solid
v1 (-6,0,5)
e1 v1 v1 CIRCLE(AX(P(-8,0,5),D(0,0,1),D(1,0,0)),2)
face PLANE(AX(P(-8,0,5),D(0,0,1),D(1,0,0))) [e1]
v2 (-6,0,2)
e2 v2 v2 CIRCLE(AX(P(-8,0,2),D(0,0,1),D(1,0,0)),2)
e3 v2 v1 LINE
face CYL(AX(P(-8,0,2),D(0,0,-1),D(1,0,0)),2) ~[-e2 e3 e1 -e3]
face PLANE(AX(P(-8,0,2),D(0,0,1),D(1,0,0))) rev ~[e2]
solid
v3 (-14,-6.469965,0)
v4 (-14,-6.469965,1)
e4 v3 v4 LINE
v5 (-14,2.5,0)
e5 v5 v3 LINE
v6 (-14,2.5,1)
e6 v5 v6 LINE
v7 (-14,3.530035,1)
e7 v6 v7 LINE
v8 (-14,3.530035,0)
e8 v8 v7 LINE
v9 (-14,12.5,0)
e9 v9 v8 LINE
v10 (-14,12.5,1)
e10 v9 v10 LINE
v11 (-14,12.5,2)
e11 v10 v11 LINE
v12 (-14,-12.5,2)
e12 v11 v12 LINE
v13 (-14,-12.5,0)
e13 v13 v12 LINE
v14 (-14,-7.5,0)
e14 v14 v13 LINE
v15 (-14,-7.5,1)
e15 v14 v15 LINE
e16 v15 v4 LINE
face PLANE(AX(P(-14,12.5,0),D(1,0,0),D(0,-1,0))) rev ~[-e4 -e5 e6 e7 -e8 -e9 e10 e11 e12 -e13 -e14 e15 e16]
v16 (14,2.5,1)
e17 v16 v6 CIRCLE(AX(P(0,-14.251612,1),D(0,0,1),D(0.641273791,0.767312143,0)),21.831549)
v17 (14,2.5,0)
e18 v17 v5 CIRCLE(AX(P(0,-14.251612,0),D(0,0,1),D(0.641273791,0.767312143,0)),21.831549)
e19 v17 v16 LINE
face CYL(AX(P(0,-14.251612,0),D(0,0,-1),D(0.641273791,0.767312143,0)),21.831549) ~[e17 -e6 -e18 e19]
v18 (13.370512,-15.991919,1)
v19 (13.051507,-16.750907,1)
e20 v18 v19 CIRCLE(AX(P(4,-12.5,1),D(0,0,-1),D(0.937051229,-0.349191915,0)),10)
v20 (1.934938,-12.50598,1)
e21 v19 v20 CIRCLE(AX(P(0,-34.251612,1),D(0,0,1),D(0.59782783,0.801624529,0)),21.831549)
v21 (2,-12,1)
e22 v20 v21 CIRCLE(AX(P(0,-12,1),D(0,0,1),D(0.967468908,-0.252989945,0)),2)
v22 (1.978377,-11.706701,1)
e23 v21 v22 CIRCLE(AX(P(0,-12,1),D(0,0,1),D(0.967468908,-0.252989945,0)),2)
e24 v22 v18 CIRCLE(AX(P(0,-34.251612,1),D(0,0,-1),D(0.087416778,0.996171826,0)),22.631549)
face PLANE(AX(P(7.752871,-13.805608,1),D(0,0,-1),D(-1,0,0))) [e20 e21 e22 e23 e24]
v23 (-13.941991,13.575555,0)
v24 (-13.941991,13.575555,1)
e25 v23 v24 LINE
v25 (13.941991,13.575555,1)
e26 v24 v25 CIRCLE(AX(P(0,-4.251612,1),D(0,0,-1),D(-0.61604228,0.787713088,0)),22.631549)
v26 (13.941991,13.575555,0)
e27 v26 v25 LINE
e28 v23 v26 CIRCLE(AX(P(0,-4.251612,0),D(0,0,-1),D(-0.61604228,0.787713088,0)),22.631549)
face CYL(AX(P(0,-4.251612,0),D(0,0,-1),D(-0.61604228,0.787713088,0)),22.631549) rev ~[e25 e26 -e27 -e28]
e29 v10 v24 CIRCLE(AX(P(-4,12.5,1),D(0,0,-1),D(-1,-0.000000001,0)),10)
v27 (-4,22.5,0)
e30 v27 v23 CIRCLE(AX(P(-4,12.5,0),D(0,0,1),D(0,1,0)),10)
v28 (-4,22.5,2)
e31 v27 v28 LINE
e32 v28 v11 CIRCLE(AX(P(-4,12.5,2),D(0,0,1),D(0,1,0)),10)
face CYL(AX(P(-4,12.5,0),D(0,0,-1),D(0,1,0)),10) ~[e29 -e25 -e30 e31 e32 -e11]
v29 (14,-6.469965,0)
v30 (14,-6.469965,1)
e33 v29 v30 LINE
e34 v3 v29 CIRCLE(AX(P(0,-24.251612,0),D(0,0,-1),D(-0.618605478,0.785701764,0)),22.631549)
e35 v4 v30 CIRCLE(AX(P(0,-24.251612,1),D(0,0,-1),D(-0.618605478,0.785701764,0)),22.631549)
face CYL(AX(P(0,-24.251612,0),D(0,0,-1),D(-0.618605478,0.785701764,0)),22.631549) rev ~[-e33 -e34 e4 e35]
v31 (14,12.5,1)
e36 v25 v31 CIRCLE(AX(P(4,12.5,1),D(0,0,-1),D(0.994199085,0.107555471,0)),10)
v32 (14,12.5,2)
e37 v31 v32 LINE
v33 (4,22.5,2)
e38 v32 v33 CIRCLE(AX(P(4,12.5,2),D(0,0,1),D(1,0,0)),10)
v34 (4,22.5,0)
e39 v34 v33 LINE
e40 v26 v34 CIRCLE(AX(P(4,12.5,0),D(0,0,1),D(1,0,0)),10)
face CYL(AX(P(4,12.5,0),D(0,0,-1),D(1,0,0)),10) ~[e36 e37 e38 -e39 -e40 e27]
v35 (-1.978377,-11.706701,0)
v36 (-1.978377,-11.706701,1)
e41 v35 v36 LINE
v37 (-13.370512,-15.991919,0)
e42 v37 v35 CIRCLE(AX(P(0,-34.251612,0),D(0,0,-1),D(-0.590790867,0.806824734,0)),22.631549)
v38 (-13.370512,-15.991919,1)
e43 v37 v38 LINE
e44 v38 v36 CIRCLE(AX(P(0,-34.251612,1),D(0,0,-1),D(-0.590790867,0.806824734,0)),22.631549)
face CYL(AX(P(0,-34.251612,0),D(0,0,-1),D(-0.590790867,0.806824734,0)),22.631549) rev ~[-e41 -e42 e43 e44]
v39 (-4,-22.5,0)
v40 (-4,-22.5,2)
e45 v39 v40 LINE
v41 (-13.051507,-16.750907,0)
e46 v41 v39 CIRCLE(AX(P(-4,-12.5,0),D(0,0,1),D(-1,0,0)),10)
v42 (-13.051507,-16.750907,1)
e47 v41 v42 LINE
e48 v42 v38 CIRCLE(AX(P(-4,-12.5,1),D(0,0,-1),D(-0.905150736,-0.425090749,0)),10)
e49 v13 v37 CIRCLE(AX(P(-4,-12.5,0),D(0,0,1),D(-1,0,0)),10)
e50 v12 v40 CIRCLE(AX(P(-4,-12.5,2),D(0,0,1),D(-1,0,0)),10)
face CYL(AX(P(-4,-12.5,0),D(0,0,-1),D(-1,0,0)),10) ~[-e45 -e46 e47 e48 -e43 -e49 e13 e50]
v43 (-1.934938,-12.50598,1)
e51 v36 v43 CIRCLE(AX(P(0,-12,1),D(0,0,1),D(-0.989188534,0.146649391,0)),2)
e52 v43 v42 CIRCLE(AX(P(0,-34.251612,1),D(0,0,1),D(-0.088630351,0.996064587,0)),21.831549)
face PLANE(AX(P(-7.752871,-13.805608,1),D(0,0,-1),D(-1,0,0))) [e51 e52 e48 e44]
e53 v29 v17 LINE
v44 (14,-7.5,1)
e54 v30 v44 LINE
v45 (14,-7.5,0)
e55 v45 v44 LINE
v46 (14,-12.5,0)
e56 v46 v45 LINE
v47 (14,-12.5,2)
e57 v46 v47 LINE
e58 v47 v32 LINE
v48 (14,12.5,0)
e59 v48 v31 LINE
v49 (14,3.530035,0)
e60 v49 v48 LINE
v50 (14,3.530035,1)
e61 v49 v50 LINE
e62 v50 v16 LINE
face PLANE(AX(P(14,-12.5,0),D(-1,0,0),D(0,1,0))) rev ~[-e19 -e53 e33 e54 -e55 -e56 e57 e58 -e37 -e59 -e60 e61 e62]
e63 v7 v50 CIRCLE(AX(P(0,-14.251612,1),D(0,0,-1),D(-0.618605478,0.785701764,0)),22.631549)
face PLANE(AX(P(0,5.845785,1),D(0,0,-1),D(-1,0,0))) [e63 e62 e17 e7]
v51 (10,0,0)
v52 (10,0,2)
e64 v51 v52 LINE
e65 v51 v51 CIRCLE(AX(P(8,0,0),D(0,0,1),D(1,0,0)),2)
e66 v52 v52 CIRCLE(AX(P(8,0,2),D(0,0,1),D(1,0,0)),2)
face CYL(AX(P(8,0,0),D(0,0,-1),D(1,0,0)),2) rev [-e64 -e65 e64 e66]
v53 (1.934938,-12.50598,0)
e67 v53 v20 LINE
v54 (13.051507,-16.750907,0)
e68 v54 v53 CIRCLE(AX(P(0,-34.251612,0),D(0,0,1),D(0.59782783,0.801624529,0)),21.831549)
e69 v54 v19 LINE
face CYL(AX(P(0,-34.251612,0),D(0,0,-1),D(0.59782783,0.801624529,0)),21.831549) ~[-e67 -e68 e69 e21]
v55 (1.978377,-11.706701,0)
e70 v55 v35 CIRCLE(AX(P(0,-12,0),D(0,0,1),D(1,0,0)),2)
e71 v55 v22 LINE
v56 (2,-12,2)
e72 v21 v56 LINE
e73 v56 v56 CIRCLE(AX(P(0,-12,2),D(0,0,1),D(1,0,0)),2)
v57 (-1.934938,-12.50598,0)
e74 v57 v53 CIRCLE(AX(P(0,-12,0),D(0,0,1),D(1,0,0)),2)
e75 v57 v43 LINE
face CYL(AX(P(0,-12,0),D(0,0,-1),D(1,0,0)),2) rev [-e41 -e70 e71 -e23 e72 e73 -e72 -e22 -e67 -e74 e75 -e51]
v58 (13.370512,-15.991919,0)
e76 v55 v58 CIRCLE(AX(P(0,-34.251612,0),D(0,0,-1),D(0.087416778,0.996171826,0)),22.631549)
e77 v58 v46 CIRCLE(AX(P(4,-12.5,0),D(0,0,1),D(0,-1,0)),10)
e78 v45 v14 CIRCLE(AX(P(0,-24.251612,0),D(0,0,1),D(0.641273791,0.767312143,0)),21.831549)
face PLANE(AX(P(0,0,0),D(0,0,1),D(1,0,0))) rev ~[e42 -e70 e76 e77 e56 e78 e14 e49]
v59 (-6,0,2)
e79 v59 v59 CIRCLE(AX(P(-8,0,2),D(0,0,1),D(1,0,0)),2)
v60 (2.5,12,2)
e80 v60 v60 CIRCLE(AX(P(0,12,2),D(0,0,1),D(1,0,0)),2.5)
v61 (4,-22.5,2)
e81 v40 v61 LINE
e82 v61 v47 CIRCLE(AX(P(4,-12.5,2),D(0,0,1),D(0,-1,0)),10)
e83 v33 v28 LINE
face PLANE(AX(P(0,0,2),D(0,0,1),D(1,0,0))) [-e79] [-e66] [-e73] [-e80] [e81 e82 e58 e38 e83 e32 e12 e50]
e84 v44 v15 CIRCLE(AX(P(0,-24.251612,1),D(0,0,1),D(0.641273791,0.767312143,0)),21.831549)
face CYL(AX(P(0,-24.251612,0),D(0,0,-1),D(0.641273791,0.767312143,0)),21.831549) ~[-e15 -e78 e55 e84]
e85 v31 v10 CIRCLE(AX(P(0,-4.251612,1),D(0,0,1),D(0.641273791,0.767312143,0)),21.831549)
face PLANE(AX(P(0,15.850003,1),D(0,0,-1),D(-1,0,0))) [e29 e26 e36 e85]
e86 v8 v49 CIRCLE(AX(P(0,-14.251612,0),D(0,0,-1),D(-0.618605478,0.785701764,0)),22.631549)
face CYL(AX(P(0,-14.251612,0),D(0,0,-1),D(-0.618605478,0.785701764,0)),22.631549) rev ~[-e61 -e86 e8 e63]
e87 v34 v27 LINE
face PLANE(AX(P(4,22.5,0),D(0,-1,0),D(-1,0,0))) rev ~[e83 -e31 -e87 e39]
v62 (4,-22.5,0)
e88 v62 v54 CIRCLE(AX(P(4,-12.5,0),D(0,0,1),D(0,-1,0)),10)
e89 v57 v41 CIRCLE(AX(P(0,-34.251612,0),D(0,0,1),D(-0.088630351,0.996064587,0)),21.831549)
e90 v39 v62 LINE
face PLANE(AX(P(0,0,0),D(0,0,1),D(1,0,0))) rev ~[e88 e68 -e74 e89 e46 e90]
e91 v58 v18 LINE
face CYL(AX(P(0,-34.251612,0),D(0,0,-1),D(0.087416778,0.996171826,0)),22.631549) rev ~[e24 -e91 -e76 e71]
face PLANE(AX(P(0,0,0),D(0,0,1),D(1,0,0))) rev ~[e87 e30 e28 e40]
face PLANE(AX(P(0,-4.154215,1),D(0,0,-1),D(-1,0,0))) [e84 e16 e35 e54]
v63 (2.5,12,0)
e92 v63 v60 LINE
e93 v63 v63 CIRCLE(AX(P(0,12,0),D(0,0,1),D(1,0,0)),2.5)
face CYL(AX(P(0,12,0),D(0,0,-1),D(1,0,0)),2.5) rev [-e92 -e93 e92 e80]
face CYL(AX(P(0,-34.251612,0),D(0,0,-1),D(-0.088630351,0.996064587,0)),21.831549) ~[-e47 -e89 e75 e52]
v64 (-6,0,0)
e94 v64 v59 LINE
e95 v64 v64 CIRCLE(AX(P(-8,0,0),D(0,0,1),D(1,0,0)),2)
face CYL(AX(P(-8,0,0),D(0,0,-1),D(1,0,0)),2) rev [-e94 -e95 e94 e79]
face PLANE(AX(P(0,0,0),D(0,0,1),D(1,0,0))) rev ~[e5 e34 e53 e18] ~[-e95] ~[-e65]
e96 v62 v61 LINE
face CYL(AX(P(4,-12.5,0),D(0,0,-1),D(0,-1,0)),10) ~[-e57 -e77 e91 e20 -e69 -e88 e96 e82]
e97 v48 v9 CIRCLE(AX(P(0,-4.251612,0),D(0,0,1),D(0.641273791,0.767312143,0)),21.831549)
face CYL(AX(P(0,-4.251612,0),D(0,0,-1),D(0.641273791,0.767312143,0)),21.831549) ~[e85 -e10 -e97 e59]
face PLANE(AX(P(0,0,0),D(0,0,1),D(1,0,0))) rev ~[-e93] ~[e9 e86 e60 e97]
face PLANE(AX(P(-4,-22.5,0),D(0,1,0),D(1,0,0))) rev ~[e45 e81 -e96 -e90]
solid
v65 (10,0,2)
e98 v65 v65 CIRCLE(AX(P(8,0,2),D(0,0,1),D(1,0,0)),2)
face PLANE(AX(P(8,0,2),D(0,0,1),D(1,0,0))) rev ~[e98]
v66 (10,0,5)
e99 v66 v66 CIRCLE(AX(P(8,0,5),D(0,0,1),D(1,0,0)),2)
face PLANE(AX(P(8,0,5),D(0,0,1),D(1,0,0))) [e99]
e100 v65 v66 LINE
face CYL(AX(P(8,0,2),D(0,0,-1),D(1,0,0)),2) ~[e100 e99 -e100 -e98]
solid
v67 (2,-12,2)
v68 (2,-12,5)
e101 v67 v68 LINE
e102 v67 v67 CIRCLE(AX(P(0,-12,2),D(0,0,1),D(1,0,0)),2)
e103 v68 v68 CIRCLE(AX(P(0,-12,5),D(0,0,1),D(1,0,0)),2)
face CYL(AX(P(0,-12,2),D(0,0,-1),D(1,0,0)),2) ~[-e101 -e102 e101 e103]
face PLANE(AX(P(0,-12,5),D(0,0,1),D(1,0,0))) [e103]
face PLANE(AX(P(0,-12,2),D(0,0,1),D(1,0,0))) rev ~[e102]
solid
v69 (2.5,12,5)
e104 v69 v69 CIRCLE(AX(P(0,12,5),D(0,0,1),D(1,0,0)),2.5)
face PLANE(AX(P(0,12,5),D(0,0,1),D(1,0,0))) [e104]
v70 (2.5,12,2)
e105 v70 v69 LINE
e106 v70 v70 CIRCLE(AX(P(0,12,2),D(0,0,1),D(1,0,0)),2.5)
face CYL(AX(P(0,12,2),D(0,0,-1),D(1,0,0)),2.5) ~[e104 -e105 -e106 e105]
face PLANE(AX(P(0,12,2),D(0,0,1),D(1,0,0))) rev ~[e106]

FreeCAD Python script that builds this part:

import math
import FreeCAD as App
import Part
import Sketcher
from FreeCAD import Vector
Q = App.Units.Quantity

doc = App.newDocument("Part")
body = doc.addObject("PartDesign::Body", "Body")

# Sketch on XY plane
sketch1 = doc.addObject("Sketcher::SketchObject", "Sketch")
body.addObject(sketch1)
sketch1.AttachmentSupport = (doc.XY_Plane, [""])
sketch1.MapMode = "FlatFace"
sketch1.addGeometry([
    Part.LineSegment(Vector(-4, -22.5, 0), Vector(4, -22.5, 0)),  # 0
    Part.ArcOfCircle(Part.Circle(Vector(4, -12.5, 0), Vector(0, 0, 1), 10), math.radians(-90), math.radians(0)),  # 1
    Part.LineSegment(Vector(14, -12.5, 0), Vector(14, 12.5, 0)),  # 2
    Part.ArcOfCircle(Part.Circle(Vector(4, 12.5, 0), Vector(0, 0, 1), 10), math.radians(0), math.radians(90)),  # 3
    Part.LineSegment(Vector(4, 22.5, 0), Vector(-4, 22.5, 0)),  # 4
    Part.ArcOfCircle(Part.Circle(Vector(-4, 12.5, 0), Vector(0, 0, 1), 10), math.radians(90), math.radians(180)),  # 5
    Part.LineSegment(Vector(-14, 12.5, 0), Vector(-14, -12.5, 0)),  # 6
    Part.ArcOfCircle(Part.Circle(Vector(-4, -12.5, 0), Vector(0, 0, 1), 10), math.radians(180), math.radians(270)),  # 7
    Part.Circle(Vector(-8, 0, 0), Vector(0, 0, 1), 2),  # 8
    Part.Circle(Vector(0, -12, 0), Vector(0, 0, 1), 2),  # 9
    Part.Circle(Vector(8, 0, 0), Vector(0, 0, 1), 2),  # 10
    Part.Circle(Vector(0, 12, 0), Vector(0, 0, 1), 2.5),  # 11
], False)
sketch1.addConstraint([
    Sketcher.Constraint("Tangent", 0, 2, 1, 1),
    Sketcher.Constraint("Tangent", 1, 2, 2, 1),
    Sketcher.Constraint("Tangent", 2, 2, 3, 1),
    Sketcher.Constraint("Tangent", 3, 2, 4, 1),
    Sketcher.Constraint("Tangent", 4, 2, 5, 1),
    Sketcher.Constraint("Tangent", 5, 2, 6, 1),
    Sketcher.Constraint("Tangent", 6, 2, 7, 1),
    Sketcher.Constraint("Tangent", 7, 2, 0, 1),
    Sketcher.Constraint("Horizontal", 0),
    Sketcher.Constraint("Vertical", 2),
    Sketcher.Constraint("Horizontal", 4),
    Sketcher.Constraint("Vertical", 6),
    Sketcher.Constraint("Equal", 1, 3),
    Sketcher.Constraint("Equal", 3, 5),
    Sketcher.Constraint("Equal", 5, 7),
    Sketcher.Constraint("Equal", 8, 9),
    Sketcher.Constraint("Equal", 9, 10),
    Sketcher.Constraint("Symmetric", 1, 3, 5, 3, -1, 1),
    Sketcher.Constraint("Symmetric", 8, 3, 10, 3, -1, 1),
    Sketcher.Constraint("Symmetric", 9, 3, 11, 3, -1, 1),
    Sketcher.Constraint("PointOnObject", 8, 3, -1),
    Sketcher.Constraint("PointOnObject", 9, 3, -2),
    Sketcher.Constraint("Diameter", 8, Q("4 mm")),
    Sketcher.Constraint("Diameter", 11, Q("5 mm")),
    Sketcher.Constraint("Radius", 1, Q("10 mm")),
    Sketcher.Constraint("DistanceX", 0, 1, 0, 2, Q("8 mm")),
    Sketcher.Constraint("DistanceY", 2, 1, 2, 2, Q("25 mm")),
    Sketcher.Constraint("DistanceX", 8, 3, -1, 1, Q("8 mm")),
    Sketcher.Constraint("DistanceY", 9, 3, -1, 1, Q("12 mm")),
])
pad1 = doc.addObject("PartDesign::Pad", "Pad")
body.addObject(pad1)
pad1.Profile = sketch1
pad1.Length = 2

# Sketch on XY plane
sketch2 = doc.addObject("Sketcher::SketchObject", "Sketch001")
body.addObject(sketch2)
sketch2.AttachmentSupport = (doc.XY_Plane, [""])
sketch2.MapMode = "FlatFace"
sketch2.addGeometry([
    Part.ArcOfCircle(Part.Circle(Vector(4, 12.5, 0), Vector(0, 0, 1), 10), math.radians(0), math.radians(6.174418)),  # 0
    Part.ArcOfCircle(Part.Circle(Vector(0, -4.251612, 0), Vector(0, 0, 1), 21.831549), math.radians(50.113131), math.radians(129.886869)),  # 1
    Part.ArcOfCircle(Part.Circle(Vector(-4, 12.5, 0), Vector(0, 0, 1), 10), math.radians(173.825582), math.radians(180)),  # 2
    Part.ArcOfCircle(Part.Circle(Vector(0, -4.251612, 0), Vector(0, 0, 1), 22.631549), math.radians(51.972307), math.radians(128.027693)),  # 3
    Part.LineSegment(Vector(14, 3.530035, 0), Vector(14, 2.5, 0)),  # 4
    Part.ArcOfCircle(Part.Circle(Vector(0, -14.251612, 0), Vector(0, 0, 1), 21.831549), math.radians(50.113131), math.radians(129.886869)),  # 5
    Part.LineSegment(Vector(-14, 2.5, 0), Vector(-14, 3.530035, 0)),  # 6
    Part.ArcOfCircle(Part.Circle(Vector(0, -14.251612, 0), Vector(0, 0, 1), 22.631549), math.radians(51.78563), math.radians(128.21437)),  # 7
    Part.LineSegment(Vector(14, -6.469965, 0), Vector(14, -7.5, 0)),  # 8
    Part.ArcOfCircle(Part.Circle(Vector(0, -24.251612, 0), Vector(0, 0, 1), 21.831549), math.radians(50.113131), math.radians(129.886869)),  # 9
    Part.LineSegment(Vector(-14, -7.5, 0), Vector(-14, -6.469965, 0)),  # 10
    Part.ArcOfCircle(Part.Circle(Vector(0, -24.251612, 0), Vector(0, 0, 1), 22.631549), math.radians(51.78563), math.radians(128.21437)),  # 11
    Part.ArcOfCircle(Part.Circle(Vector(0, -34.251612, 0), Vector(0, 0, 1), 22.631549), math.radians(53.786849), math.radians(84.984986)),  # 12
    Part.ArcOfCircle(Part.Circle(Vector(4, -12.5, 0), Vector(0, 0, 1), 10), math.radians(-25.156408), math.radians(-20.437897)),  # 13
    Part.ArcOfCircle(Part.Circle(Vector(0, -34.251612, 0), Vector(0, 0, 1), 21.831549), math.radians(53.285515), math.radians(84.915183)),  # 14
    Part.ArcOfCircle(Part.Circle(Vector(0, -12, 0), Vector(0, 0, 1), 2), math.radians(-14.654513), math.radians(8.432803)),  # 15
    Part.ArcOfCircle(Part.Circle(Vector(0, -34.251612, 0), Vector(0, 0, 1), 22.631549), math.radians(95.015014), math.radians(126.213151)),  # 16
    Part.ArcOfCircle(Part.Circle(Vector(0, -12, 0), Vector(0, 0, 1), 2), math.radians(171.567197), math.radians(194.654513)),  # 17
    Part.ArcOfCircle(Part.Circle(Vector(0, -34.251612, 0), Vector(0, 0, 1), 21.831549), math.radians(95.084817), math.radians(126.714485)),  # 18
    Part.ArcOfCircle(Part.Circle(Vector(-4, -12.5, 0), Vector(0, 0, 1), 10), math.radians(-159.562103), math.radians(-154.843592)),  # 19
], False)
sketch2.addConstraint([
    Sketcher.Constraint("Coincident", 0, 1, 1, 1),
    Sketcher.Constraint("Coincident", 1, 2, 2, 2),
    Sketcher.Constraint("Coincident", 2, 1, 3, 2),
    Sketcher.Constraint("Coincident", 3, 1, 0, 2),
    Sketcher.Constraint("Coincident", 4, 2, 5, 1),
    Sketcher.Constraint("Coincident", 5, 2, 6, 1),
    Sketcher.Constraint("Coincident", 6, 2, 7, 2),
    Sketcher.Constraint("Coincident", 7, 1, 4, 1),
    Sketcher.Constraint("Coincident", 8, 2, 9, 1),
    Sketcher.Constraint("Coincident", 9, 2, 10, 1),
    Sketcher.Constraint("Coincident", 10, 2, 11, 2),
    Sketcher.Constraint("Coincident", 11, 1, 8, 1),
    Sketcher.Constraint("Coincident", 12, 1, 13, 2),
    Sketcher.Constraint("Coincident", 13, 1, 14, 1),
    Sketcher.Constraint("Coincident", 14, 2, 15, 1),
    Sketcher.Constraint("Coincident", 15, 2, 12, 2),
    Sketcher.Constraint("Coincident", 16, 1, 17, 1),
    Sketcher.Constraint("Coincident", 17, 2, 18, 1),
    Sketcher.Constraint("Coincident", 18, 2, 19, 2),
    Sketcher.Constraint("Coincident", 19, 1, 16, 2),
    Sketcher.Constraint("Vertical", 4),
    Sketcher.Constraint("Vertical", 6),
    Sketcher.Constraint("Vertical", 8),
    Sketcher.Constraint("Vertical", 10),
    Sketcher.Constraint("Coincident", 3, 3, 1, 3),
    Sketcher.Constraint("Coincident", 7, 3, 5, 3),
    Sketcher.Constraint("Coincident", 11, 3, 9, 3),
    Sketcher.Constraint("Coincident", 14, 3, 12, 3),
    Sketcher.Constraint("Coincident", 16, 3, 12, 3),
    Sketcher.Constraint("Coincident", 17, 3, 15, 3),
    Sketcher.Constraint("Coincident", 18, 3, 12, 3),
    Sketcher.Constraint("Equal", 0, 2),
    Sketcher.Constraint("Equal", 1, 5),
    Sketcher.Constraint("Equal", 3, 7),
    Sketcher.Constraint("Equal", 5, 9),
    Sketcher.Constraint("Equal", 7, 11),
    Sketcher.Constraint("Equal", 11, 12),
    Sketcher.Constraint("Equal", 2, 13),
    Sketcher.Constraint("Equal", 9, 14),
    Sketcher.Constraint("Equal", 12, 16),
    Sketcher.Constraint("Equal", 15, 17),
    Sketcher.Constraint("Equal", 14, 18),
    Sketcher.Constraint("Equal", 13, 19),
    Sketcher.Constraint("Symmetric", 2, 3, 13, 3, -1, 1),
    Sketcher.Constraint("Symmetric", 0, 3, 19, 3, -1, 1),
    Sketcher.Constraint("Symmetric", 0, 3, 2, 3, -2),
    Sketcher.Constraint("Symmetric", 4, 2, 5, 2, -2),
    Sketcher.Constraint("Symmetric", 8, 2, 9, 2, -2),
    Sketcher.Constraint("Symmetric", 15, 2, 16, 1, -2),
    Sketcher.Constraint("PointOnObject", 1, 3, -2),
    Sketcher.Constraint("Horizontal", 2, 3, 0, 1),
    Sketcher.Constraint("Vertical", 0, 1, 4, 2),
    Sketcher.Constraint("Vertical", 7, 1, 8, 2),
    Sketcher.Constraint("Radius", 0, Q("10 mm")),
    Sketcher.Constraint("Radius", 15, Q("2 mm")),
    Sketcher.Constraint("DistanceX", -1, 1, 0, 3, Q("4 mm")),
    Sketcher.Constraint("DistanceY", 15, 3, -1, 1, Q("12 mm")),
    Sketcher.Constraint("DistanceY", 5, 3, 1, 3, Q("10 mm")),
    Sketcher.Constraint("DistanceY", 9, 3, 5, 3, Q("10 mm")),
    Sketcher.Constraint("DistanceY", 12, 3, 9, 3, Q("10 mm")),
    Sketcher.Constraint("DistanceY", 13, 3, 0, 1, Q("25 mm")),
    Sketcher.Constraint("Radius", 1, Q("21.831549 mm")),
    Sketcher.Constraint("Radius", 3, Q("22.631549 mm")),
])
pocket1 = doc.addObject("PartDesign::Pocket", "Pocket")
body.addObject(pocket1)
pocket1.Profile = sketch2
pocket1.Length = 1
pocket1.Reversed = True
body2 = doc.addObject("PartDesign::Body", "Body001")

# Sketch on XY plane
sketch3 = doc.addObject("Sketcher::SketchObject", "Sketch002")
body2.addObject(sketch3)
sketch3.AttachmentSupport = (doc.getObject("XY_Plane001"), [""])
sketch3.MapMode = "FlatFace"
sketch3.AttachmentOffset = App.Placement(Vector(0, 0, 2), App.Rotation())
sketch3.addGeometry(Part.Circle(Vector(8, 0, 0), Vector(0, 0, 1), 2), False)
sketch3.addConstraint([
    Sketcher.Constraint("PointOnObject", 0, 3, -1),
    Sketcher.Constraint("Diameter", 0, Q("4 mm")),
    Sketcher.Constraint("DistanceX", -1, 1, 0, 3, Q("8 mm")),
])
pad2 = doc.addObject("PartDesign::Pad", "Pad001")
body2.addObject(pad2)
pad2.Profile = sketch3
pad2.Length = 3
body3 = doc.addObject("PartDesign::Body", "Body002")

# Sketch on XY plane
sketch4 = doc.addObject("Sketcher::SketchObject", "Sketch003")
body3.addObject(sketch4)
sketch4.AttachmentSupport = (doc.getObject("XY_Plane002"), [""])
sketch4.MapMode = "FlatFace"
sketch4.AttachmentOffset = App.Placement(Vector(0, 0, 2), App.Rotation())
sketch4.addGeometry(Part.Circle(Vector(0, -12, 0), Vector(0, 0, 1), 2), False)
sketch4.addConstraint([
    Sketcher.Constraint("PointOnObject", 0, 3, -2),
    Sketcher.Constraint("Diameter", 0, Q("4 mm")),
    Sketcher.Constraint("DistanceY", 0, 3, -1, 1, Q("12 mm")),
])
pad3 = doc.addObject("PartDesign::Pad", "Pad002")
body3.addObject(pad3)
pad3.Profile = sketch4
pad3.Length = 3
body4 = doc.addObject("PartDesign::Body", "Body003")

# Sketch on XY plane
sketch5 = doc.addObject("Sketcher::SketchObject", "Sketch004")
body4.addObject(sketch5)
sketch5.AttachmentSupport = (doc.getObject("XY_Plane003"), [""])
sketch5.MapMode = "FlatFace"
sketch5.AttachmentOffset = App.Placement(Vector(0, 0, 2), App.Rotation())
sketch5.addGeometry(Part.Circle(Vector(-8, 0, 0), Vector(0, 0, 1), 2), False)
sketch5.addConstraint([
    Sketcher.Constraint("PointOnObject", 0, 3, -1),
    Sketcher.Constraint("Diameter", 0, Q("4 mm")),
    Sketcher.Constraint("DistanceX", 0, 3, -1, 1, Q("8 mm")),
])
pad4 = doc.addObject("PartDesign::Pad", "Pad003")
body4.addObject(pad4)
pad4.Profile = sketch5
pad4.Length = 3
body5 = doc.addObject("PartDesign::Body", "Body004")

# Sketch on XY plane
sketch6 = doc.addObject("Sketcher::SketchObject", "Sketch005")
body5.addObject(sketch6)
sketch6.AttachmentSupport = (doc.getObject("XY_Plane004"), [""])
sketch6.MapMode = "FlatFace"
sketch6.AttachmentOffset = App.Placement(Vector(0, 0, 2), App.Rotation())
sketch6.addGeometry(Part.Circle(Vector(0, 12, 0), Vector(0, 0, 1), 2.5), False)
sketch6.addConstraint([
    Sketcher.Constraint("PointOnObject", 0, 3, -2),
    Sketcher.Constraint("Diameter", 0, Q("5 mm")),
    Sketcher.Constraint("DistanceY", -1, 1, 0, 3, Q("12 mm")),
])
pad5 = doc.addObject("PartDesign::Pad", "Pad004")
body5.addObject(pad5)
pad5.Profile = sketch6
pad5.Length = 3

doc.recompute()
